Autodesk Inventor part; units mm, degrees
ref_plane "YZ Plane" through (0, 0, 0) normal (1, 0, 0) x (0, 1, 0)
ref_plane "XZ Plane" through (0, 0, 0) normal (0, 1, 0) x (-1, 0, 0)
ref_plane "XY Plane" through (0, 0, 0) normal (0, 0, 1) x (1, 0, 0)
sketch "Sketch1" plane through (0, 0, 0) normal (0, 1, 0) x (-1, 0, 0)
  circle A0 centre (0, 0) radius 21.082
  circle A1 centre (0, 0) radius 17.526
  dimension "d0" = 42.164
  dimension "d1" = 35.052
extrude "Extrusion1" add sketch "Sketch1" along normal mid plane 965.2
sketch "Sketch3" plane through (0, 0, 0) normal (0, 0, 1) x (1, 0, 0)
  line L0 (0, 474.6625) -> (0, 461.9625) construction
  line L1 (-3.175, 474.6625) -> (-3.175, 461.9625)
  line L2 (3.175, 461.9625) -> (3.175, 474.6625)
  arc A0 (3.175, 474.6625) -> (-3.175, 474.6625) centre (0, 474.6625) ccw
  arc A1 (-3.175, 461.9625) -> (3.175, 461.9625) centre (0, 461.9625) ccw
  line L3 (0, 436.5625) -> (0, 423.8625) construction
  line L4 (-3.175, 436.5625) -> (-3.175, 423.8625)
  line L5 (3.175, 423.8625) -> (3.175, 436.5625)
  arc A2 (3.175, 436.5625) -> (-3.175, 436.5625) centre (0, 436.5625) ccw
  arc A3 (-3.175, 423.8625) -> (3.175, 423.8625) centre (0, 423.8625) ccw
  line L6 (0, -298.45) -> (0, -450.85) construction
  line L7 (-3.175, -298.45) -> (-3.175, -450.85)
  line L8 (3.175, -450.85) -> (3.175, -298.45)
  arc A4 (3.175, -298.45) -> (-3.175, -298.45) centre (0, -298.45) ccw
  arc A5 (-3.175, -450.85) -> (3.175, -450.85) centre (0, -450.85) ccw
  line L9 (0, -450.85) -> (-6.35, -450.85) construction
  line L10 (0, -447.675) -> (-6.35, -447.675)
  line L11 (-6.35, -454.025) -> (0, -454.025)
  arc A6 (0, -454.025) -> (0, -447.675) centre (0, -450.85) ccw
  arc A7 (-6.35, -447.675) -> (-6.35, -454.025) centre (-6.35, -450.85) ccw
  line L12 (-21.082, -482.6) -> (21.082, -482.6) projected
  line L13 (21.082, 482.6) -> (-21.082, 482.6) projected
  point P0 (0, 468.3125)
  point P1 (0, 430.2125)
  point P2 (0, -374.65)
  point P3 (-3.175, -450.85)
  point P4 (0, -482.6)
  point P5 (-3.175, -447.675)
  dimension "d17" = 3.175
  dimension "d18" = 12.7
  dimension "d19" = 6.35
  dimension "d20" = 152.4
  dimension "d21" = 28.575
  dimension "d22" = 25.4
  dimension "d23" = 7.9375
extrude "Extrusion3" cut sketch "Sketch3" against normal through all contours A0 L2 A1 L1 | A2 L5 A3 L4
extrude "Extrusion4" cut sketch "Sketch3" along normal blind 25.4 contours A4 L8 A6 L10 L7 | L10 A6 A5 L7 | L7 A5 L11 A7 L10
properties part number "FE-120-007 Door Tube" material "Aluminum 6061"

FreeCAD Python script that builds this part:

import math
import FreeCAD as App
import Part
import Sketcher
Q = App.Units.Quantity

doc = App.newDocument("Part")
body = doc.addObject("PartDesign::Body", "Body")

# Sketch on XZ plane
sketch1 = body.newObject("Sketcher::SketchObject", "Sketch")
sketch1.AttachmentSupport = (doc.getObject("XZ_Plane"), [""])
sketch1.MapMode = "FlatFace"
sketch1.addGeometry(Part.Circle(App.Vector(0, 0, 0), App.Vector(0, 0, 1), 21), False)
sketch1.addGeometry(Part.Circle(App.Vector(0, 0, 0), App.Vector(0, 0, 1), 18), False)
sketch1.addConstraint(Sketcher.Constraint("Coincident", 0, 3, -1, 1))
sketch1.addConstraint(Sketcher.Constraint("Coincident", 1, 3, -1, 1))
sketch1.addConstraint(Sketcher.Constraint("Diameter", 0, Q("1.66 in")))
sketch1.addConstraint(Sketcher.Constraint("Diameter", 1, Q("1.38 in")))
pad1 = body.newObject("PartDesign::Pad", "Pad")
pad1.Profile = sketch1
pad1.Length = Q("38 in")
pad1.Midplane = True

# Sketch on XY plane
sketch2 = body.newObject("Sketcher::SketchObject", "Sketch001")
sketch2.AttachmentSupport = (doc.getObject("XY_Plane"), [""])
sketch2.MapMode = "FlatFace"
sketch2.addGeometry(Part.ArcOfCircle(Part.Circle(App.Vector(0, 474.7, 0), App.Vector(0, 0, 1), 3.2), math.radians(0), math.radians(180)), False)
sketch2.addGeometry(Part.LineSegment(App.Vector(-3.2, 474.7, 0), App.Vector(-3.2, 462, 0)), False)
sketch2.addGeometry(Part.ArcOfCircle(Part.Circle(App.Vector(0, 462, 0), App.Vector(0, 0, 1), 3.2), math.radians(180), math.radians(360)), False)
sketch2.addGeometry(Part.LineSegment(App.Vector(3.2, 462, 0), App.Vector(3.2, 474.7, 0)), False)
sketch2.addGeometry(Part.ArcOfCircle(Part.Circle(App.Vector(0, 436.6, 0), App.Vector(0, 0, 1), 3.2), math.radians(0), math.radians(180)), False)
sketch2.addGeometry(Part.LineSegment(App.Vector(-3.2, 436.6, 0), App.Vector(-3.2, 423.9, 0)), False)
sketch2.addGeometry(Part.ArcOfCircle(Part.Circle(App.Vector(0, 423.9, 0), App.Vector(0, 0, 1), 3.2), math.radians(180), math.radians(360)), False)
sketch2.addGeometry(Part.LineSegment(App.Vector(3.2, 423.9, 0), App.Vector(3.2, 436.6, 0)), False)
sketch2.addConstraint(Sketcher.Constraint("Tangent", 0, 2, 1, 1))
sketch2.addConstraint(Sketcher.Constraint("Tangent", 1, 2, 2, 1))
sketch2.addConstraint(Sketcher.Constraint("Tangent", 2, 2, 3, 1))
sketch2.addConstraint(Sketcher.Constraint("Tangent", 3, 2, 0, 1))
sketch2.addConstraint(Sketcher.Constraint("Tangent", 4, 2, 5, 1))
sketch2.addConstraint(Sketcher.Constraint("Tangent", 5, 2, 6, 1))
sketch2.addConstraint(Sketcher.Constraint("Tangent", 6, 2, 7, 1))
sketch2.addConstraint(Sketcher.Constraint("Tangent", 7, 2, 4, 1))
sketch2.addConstraint(Sketcher.Constraint("Vertical", 1))
sketch2.addConstraint(Sketcher.Constraint("Vertical", 3))
sketch2.addConstraint(Sketcher.Constraint("Vertical", 5))
sketch2.addConstraint(Sketcher.Constraint("Vertical", 7))
sketch2.addConstraint(Sketcher.Constraint("Equal", 2, 4))
sketch2.addConstraint(Sketcher.Constraint("PointOnObject", 0, 3, -2))
sketch2.addConstraint(Sketcher.Constraint("PointOnObject", 4, 3, -2))
sketch2.addConstraint(Sketcher.Constraint("Equal", 3, 5))
sketch2.addConstraint(Sketcher.Constraint("DistanceY", 1, 2, 1, 1, Q("0.5 in")))
sketch2.addConstraint(Sketcher.Constraint("Radius", 0, Q("0.125 in")))
sketch2.addConstraint(Sketcher.Constraint("DistanceY", 4, 3, 2, 3, Q("1 in")))
sketch2.addConstraint(Sketcher.Constraint("DistanceY", -1, 1, 0, 3, Q("18.6875 in")))
pocket1 = body.newObject("PartDesign::Pocket", "Pocket")
pocket1.Profile = sketch2
pocket1.Type = "ThroughAll"

# Sketch on XY plane
sketch3 = body.newObject("Sketcher::SketchObject", "Sketch002")
sketch3.AttachmentSupport = (doc.getObject("XY_Plane"), [""])
sketch3.MapMode = "FlatFace"
sketch3.addGeometry(Part.ArcOfCircle(Part.Circle(App.Vector(0, -298.4, 0), App.Vector(0, 0, 1), 3.2), math.radians(0), math.radians(180)), False)
sketch3.addGeometry(Part.LineSegment(App.Vector(-3.2, -298.4, 0), App.Vector(-3.2, -447.7, 0)), False)
sketch3.addGeometry(Part.LineSegment(App.Vector(-3.2, -447.7, 0), App.Vector(-6.3, -447.7, 0)), False)
sketch3.addGeometry(Part.ArcOfCircle(Part.Circle(App.Vector(-6.3, -450.9, 0), App.Vector(0, 0, 1), 3.2), math.radians(90), math.radians(270)), False)
sketch3.addGeometry(Part.LineSegment(App.Vector(-6.3, -454, 0), App.Vector(0, -454, 0)), False)
sketch3.addGeometry(Part.ArcOfCircle(Part.Circle(App.Vector(0, -450.9, 0), App.Vector(0, 0, 1), 3.2), math.radians(-90), math.radians(0)), False)
sketch3.addGeometry(Part.LineSegment(App.Vector(3.2, -450.9, 0), App.Vector(3.2, -298.4, 0)), False)
sketch3.addConstraint(Sketcher.Constraint("Tangent", 0, 2, 1, 1))
sketch3.addConstraint(Sketcher.Constraint("Coincident", 1, 2, 2, 1))
sketch3.addConstraint(Sketcher.Constraint("Tangent", 2, 2, 3, 1))
sketch3.addConstraint(Sketcher.Constraint("Tangent", 3, 2, 4, 1))
sketch3.addConstraint(Sketcher.Constraint("Tangent", 4, 2, 5, 1))
sketch3.addConstraint(Sketcher.Constraint("Tangent", 5, 2, 6, 1))
sketch3.addConstraint(Sketcher.Constraint("Tangent", 6, 2, 0, 1))
sketch3.addConstraint(Sketcher.Constraint("Vertical", 1))
sketch3.addConstraint(Sketcher.Constraint("Horizontal", 2))
sketch3.addConstraint(Sketcher.Constraint("Horizontal", 4))
sketch3.addConstraint(Sketcher.Constraint("Vertical", 6))
sketch3.addConstraint(Sketcher.Constraint("Equal", 0, 3))
sketch3.addConstraint(Sketcher.Constraint("Equal", 3, 5))
sketch3.addConstraint(Sketcher.Constraint("PointOnObject", 0, 3, -2))
sketch3.addConstraint(Sketcher.Constraint("DistanceY", 6, 1, 6, 2, Q("6 in")))
sketch3.addConstraint(Sketcher.Constraint("Radius", 0, Q("0.125 in")))
sketch3.addConstraint(Sketcher.Constraint("DistanceX", 4, 1, 4, 2, Q("0.25 in")))
sketch3.addConstraint(Sketcher.Constraint("DistanceY", 0, 3, -1, 1, Q("11.75 in")))
pocket2 = body.newObject("PartDesign::Pocket", "Pocket001")
pocket2.Profile = sketch3
pocket2.Length = Q("1 in")
pocket2.Reversed = True

doc.recompute()
